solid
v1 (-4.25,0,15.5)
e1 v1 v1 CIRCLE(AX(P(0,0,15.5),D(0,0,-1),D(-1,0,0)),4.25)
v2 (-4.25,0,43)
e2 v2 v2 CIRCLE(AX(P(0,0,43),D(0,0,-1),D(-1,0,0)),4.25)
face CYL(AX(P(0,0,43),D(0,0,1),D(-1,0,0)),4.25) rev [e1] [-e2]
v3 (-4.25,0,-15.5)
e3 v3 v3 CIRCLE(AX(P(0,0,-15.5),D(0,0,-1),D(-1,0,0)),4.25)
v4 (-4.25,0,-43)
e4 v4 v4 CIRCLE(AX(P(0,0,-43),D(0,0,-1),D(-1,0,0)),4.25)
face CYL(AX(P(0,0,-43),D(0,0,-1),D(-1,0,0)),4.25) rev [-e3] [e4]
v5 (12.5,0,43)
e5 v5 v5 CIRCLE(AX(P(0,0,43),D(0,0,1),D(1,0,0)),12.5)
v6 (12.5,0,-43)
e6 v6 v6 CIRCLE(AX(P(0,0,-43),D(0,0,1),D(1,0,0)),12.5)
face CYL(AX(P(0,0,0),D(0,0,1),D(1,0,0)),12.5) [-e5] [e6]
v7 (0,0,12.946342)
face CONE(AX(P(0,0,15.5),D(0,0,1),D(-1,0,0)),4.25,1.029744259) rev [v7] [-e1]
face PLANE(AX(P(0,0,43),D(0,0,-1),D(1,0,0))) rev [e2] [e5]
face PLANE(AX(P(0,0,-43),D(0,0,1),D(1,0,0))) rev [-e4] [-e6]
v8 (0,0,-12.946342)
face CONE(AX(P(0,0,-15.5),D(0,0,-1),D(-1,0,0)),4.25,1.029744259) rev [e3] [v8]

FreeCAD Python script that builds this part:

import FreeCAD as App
import Part
import Sketcher
from FreeCAD import Vector

doc = App.newDocument("Part")
body = doc.addObject("PartDesign::Body", "Body")

sketch1 = body.newObject("Sketcher::SketchObject", "Sketch")
sketch1.AttachmentSupport = (doc.getObject("YZ_Plane"), [""])
sketch1.MapMode = "FlatFace"
sketch1.addGeometry(Part.LineSegment(Vector(12, 0, 0), Vector(0, 0, 0)), False)
sketch1.addGeometry(Part.LineSegment(Vector(0, 0, 0), Vector(0, -43, 0)), False)
sketch1.addGeometry(Part.LineSegment(Vector(0, -43, 0), Vector(12, -43, 0)), False)
sketch1.addGeometry(Part.LineSegment(Vector(12, -43, 0), Vector(12, 0, 0)), False)
sketch1.addConstraint(Sketcher.Constraint("Coincident", 0, 2, 1, 1))
sketch1.addConstraint(Sketcher.Constraint("Coincident", 1, 2, 2, 1))
sketch1.addConstraint(Sketcher.Constraint("Coincident", 2, 2, 3, 1))
sketch1.addConstraint(Sketcher.Constraint("Coincident", 3, 2, 0, 1))
sketch1.addConstraint(Sketcher.Constraint("Horizontal", 0))
sketch1.addConstraint(Sketcher.Constraint("Vertical", 1))
sketch1.addConstraint(Sketcher.Constraint("Horizontal", 2))
sketch1.addConstraint(Sketcher.Constraint("Vertical", 3))
sketch1.addConstraint(Sketcher.Constraint("Coincident", 0, 2, -1, 1))
sketch1.addConstraint(Sketcher.Constraint("DistanceY", 1, 2, 1, 1, 43.0))
sketch1.addConstraint(Sketcher.Constraint("DistanceX", 0, 2, 0, 1, 12.5))
revolution = body.newObject("PartDesign::Revolution", "Revolution")
revolution.Profile = sketch1
revolution.ReferenceAxis = (sketch1, ["V_Axis"])
revolution.Angle = 360

sketch2 = body.newObject("Sketcher::SketchObject", "Sketch001")
sketch2.AttachmentSupport = (doc.getObject("XY_Plane"), [""])
sketch2.MapMode = "FlatFace"
sketch2.AttachmentOffset = App.Placement(Vector(0, 0, -43), App.Rotation())
sketch2.addGeometry(Part.Circle(Vector(0, 0, 0), Vector(0, 0, 1), 4.2), False)
sketch2.addConstraint(Sketcher.Constraint("Coincident", 0, 3, -1, 1))
sketch2.addConstraint(Sketcher.Constraint("Diameter", 0, 8.5))
doc.recompute()
hole = body.newObject("PartDesign::Hole", "Hole")
hole.Profile = sketch2
hole.ThreadType = "None"
hole.Diameter = 8.5
hole.DepthType = "Dimension"
hole.Depth = 27.5
hole.DrillPoint = "Angled"
hole.DrillPointAngle = 118
hole.Reversed = True
body2 = doc.addObject("PartDesign::Body", "Body001")
doc.recompute()

body2.BaseFeature = body
doc.recompute()

mirroring = doc.addObject("Part::Mirroring", "Mirroring")
mirroring.Source = body
mirroring.Base = Vector(0, 0, 0)
mirroring.Normal = Vector(0, 0, -1)
body3 = doc.addObject("PartDesign::Body", "Body002")
body3.BaseFeature = mirroring
boolean = body2.newObject("PartDesign::Boolean", "Boolean")
boolean.Type = "Fuse"
boolean.addObjects([body3])
doc.recompute()
mirroring.Visibility = False

doc.recompute()
